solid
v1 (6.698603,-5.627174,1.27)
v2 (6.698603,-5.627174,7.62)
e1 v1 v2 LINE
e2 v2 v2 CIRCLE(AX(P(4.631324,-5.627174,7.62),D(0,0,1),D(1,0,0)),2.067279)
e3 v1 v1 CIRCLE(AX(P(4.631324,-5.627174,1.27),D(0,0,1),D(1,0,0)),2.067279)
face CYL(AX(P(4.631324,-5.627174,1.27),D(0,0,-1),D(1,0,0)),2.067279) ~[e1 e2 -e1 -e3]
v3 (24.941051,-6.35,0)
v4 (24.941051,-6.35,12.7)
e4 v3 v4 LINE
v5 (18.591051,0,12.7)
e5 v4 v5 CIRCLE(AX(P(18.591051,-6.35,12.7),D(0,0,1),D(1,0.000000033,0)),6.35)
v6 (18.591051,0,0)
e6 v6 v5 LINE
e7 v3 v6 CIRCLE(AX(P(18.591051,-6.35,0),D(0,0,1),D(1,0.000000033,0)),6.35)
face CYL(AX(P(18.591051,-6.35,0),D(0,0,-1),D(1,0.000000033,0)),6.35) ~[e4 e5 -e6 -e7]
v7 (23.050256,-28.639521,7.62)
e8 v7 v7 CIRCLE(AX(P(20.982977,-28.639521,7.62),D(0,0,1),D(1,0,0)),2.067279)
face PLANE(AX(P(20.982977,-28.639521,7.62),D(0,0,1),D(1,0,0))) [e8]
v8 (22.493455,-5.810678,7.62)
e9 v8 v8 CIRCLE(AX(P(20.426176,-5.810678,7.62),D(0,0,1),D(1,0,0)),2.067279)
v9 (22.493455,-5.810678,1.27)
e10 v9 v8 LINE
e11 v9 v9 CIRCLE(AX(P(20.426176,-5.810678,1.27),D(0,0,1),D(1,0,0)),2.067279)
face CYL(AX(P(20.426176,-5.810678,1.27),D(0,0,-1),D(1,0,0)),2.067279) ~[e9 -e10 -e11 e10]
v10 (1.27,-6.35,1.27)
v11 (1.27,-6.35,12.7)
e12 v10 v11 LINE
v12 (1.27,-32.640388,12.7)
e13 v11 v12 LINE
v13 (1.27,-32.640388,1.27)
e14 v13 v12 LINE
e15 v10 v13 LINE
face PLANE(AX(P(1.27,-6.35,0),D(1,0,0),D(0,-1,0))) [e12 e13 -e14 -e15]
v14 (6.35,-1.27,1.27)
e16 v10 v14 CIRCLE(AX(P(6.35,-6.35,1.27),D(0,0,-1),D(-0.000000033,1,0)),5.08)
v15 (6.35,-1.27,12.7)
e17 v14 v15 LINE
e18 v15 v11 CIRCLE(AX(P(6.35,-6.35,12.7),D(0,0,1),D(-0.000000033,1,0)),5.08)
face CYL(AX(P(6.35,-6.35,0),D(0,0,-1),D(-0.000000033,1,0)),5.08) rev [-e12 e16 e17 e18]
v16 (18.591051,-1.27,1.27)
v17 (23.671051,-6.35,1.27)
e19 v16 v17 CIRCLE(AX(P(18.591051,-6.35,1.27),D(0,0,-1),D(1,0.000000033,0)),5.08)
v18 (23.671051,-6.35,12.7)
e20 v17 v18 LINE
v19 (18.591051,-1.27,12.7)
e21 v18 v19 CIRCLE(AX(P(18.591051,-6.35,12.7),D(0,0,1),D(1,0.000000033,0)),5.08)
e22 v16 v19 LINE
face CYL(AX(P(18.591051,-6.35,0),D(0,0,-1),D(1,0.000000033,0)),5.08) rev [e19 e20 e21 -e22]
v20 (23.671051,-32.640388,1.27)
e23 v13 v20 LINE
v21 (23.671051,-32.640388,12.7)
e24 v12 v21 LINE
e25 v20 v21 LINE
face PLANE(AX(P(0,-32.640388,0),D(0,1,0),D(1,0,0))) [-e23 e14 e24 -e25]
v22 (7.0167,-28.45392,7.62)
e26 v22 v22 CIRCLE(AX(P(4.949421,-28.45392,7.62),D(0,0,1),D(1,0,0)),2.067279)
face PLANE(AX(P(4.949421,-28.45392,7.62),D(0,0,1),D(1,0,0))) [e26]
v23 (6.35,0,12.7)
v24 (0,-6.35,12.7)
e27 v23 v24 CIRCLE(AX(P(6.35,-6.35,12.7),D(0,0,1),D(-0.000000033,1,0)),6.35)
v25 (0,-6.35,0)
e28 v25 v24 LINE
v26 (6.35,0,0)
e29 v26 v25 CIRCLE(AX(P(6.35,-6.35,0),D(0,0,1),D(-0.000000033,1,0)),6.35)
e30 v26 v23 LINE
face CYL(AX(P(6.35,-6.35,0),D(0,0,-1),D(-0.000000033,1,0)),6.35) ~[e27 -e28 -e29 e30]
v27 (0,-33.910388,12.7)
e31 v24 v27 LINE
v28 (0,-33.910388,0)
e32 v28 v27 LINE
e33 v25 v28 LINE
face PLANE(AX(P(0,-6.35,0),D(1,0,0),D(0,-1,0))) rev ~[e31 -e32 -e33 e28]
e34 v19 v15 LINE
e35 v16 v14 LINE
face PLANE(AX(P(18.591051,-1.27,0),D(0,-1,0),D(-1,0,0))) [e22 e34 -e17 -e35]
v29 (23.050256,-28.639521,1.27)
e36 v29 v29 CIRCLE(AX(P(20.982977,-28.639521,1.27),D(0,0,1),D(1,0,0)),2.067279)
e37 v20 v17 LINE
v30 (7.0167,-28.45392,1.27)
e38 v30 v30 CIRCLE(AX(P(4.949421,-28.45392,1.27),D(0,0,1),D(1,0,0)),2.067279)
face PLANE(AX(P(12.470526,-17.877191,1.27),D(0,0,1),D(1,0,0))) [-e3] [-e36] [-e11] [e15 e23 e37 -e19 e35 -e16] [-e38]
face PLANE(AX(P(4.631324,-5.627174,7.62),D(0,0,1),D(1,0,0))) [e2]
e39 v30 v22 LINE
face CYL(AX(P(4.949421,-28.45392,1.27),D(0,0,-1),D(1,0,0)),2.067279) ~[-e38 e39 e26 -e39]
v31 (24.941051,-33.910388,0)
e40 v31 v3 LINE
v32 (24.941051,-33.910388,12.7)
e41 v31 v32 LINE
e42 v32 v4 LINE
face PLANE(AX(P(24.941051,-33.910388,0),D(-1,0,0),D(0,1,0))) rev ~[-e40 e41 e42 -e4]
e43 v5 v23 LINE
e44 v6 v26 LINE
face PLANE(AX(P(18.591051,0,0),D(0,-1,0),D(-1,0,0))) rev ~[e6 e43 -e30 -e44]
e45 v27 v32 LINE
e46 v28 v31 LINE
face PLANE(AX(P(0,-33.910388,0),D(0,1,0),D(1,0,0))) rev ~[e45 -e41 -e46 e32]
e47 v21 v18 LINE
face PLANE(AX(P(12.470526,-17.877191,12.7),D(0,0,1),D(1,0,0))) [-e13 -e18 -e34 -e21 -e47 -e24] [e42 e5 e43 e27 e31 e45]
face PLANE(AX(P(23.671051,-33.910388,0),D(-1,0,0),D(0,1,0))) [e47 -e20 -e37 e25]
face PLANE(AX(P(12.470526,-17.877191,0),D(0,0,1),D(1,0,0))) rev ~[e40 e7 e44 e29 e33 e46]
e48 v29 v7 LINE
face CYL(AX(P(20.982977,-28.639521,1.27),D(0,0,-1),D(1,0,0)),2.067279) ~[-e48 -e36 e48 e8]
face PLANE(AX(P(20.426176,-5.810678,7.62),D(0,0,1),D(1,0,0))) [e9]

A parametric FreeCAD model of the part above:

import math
import FreeCAD as App
import Part
import Sketcher
from FreeCAD import Vector
Q = App.Units.Quantity


def faces_at(feature, points):
    """Names of the faces that lie closest to the given points."""
    faces = feature.Shape.Faces
    near = lambda p: min(range(len(faces)), key=lambda i: faces[i].distToShape(Part.Vertex(*p))[0])
    return sorted({f"Face{near(p) + 1}" for p in points})

doc = App.newDocument("Part")
params = doc.addObject("Spreadsheet::Sheet", "Params")
for row, (alias, value) in enumerate([
    ("sketch1_radius", "0.25 in"),
    ("pad1_length", "0.5 in"),
    ("thickness_wall", "0.05 in"),
    ("pad2_length", "0.25 in"),
    ("pad3_length", "0.25 in"),
], start=1):
    params.set(f"A{row}", alias)
    params.set(f"B{row}", "=" + value)
    params.setAlias(f"B{row}", alias)

body = doc.addObject("PartDesign::Body", "Body")

# Sketch on XY plane
sketch1 = body.newObject("Sketcher::SketchObject", "Sketch")
sketch1.AttachmentSupport = (doc.getObject("XY_Plane"), [""])
sketch1.MapMode = "FlatFace"
sketch1.addGeometry(Part.LineSegment(Vector(19, 0, 0), Vector(6, 0, 0)), False)
sketch1.addGeometry(Part.ArcOfCircle(Part.Circle(Vector(6, -6, 0), Vector(0, 0, 1), 6), math.radians(90), math.radians(180)), False)
sketch1.addGeometry(Part.LineSegment(Vector(0, -6, 0), Vector(0, -34, 0)), False)
sketch1.addGeometry(Part.LineSegment(Vector(0, -34, 0), Vector(25, -34, 0)), False)
sketch1.addGeometry(Part.LineSegment(Vector(25, -34, 0), Vector(25, -6, 0)), False)
sketch1.addGeometry(Part.ArcOfCircle(Part.Circle(Vector(19, -6, 0), Vector(0, 0, 1), 6), math.radians(0), math.radians(90)), False)
sketch1.addConstraint(Sketcher.Constraint("Tangent", 0, 2, 1, 1))
sketch1.addConstraint(Sketcher.Constraint("Tangent", 1, 2, 2, 1))
sketch1.addConstraint(Sketcher.Constraint("Coincident", 2, 2, 3, 1))
sketch1.addConstraint(Sketcher.Constraint("Coincident", 3, 2, 4, 1))
sketch1.addConstraint(Sketcher.Constraint("Tangent", 4, 2, 5, 1))
sketch1.addConstraint(Sketcher.Constraint("Tangent", 5, 2, 0, 1))
sketch1.addConstraint(Sketcher.Constraint("Horizontal", 0))
sketch1.addConstraint(Sketcher.Constraint("Vertical", 2))
sketch1.addConstraint(Sketcher.Constraint("Horizontal", 3))
sketch1.addConstraint(Sketcher.Constraint("Vertical", 4))
sketch1.addConstraint(Sketcher.Constraint("Equal", 1, 5))
sketch1.addConstraint(Sketcher.Constraint("PointOnObject", 0, 2, -1))
sketch1.addConstraint(Sketcher.Constraint("PointOnObject", 1, 2, -2))
sketch1.addConstraint(Sketcher.Constraint("Radius", 1, Q("0.25 in")))
sketch1.addConstraint(Sketcher.Constraint("DistanceX", 0, 2, 0, 1, 12.241051))
sketch1.addConstraint(Sketcher.Constraint("DistanceY", 2, 2, 2, 1, 27.560388))
sketch1.setExpression("Constraints[13]", "Params.sketch1_radius")
pad1 = body.newObject("PartDesign::Pad", "Pad")
pad1.Profile = sketch1
pad1.setExpression("Length", "Params.pad1_length")
doc.recompute()

thickness = body.newObject("PartDesign::Thickness", "Thickness")
thickness.Base = (pad1, faces_at(pad1, [(12.471, -16.955, 12.7)]))
thickness.setExpression("Value", "Params.thickness_wall")
thickness.Reversed = True
thickness.Join = "Arc"

# Sketch on XY plane
sketch2 = body.newObject("Sketcher::SketchObject", "Sketch001")
sketch2.AttachmentSupport = (doc.getObject("XY_Plane"), [""])
sketch2.MapMode = "FlatFace"
sketch2.AttachmentOffset = App.Placement(Vector(0, 0, 0.05 * 25.4), App.Rotation())
sketch2.addGeometry(Part.Circle(Vector(4.6, -5.6, 0), Vector(0, 0, 1), 2.1), False)
sketch2.addConstraint(Sketcher.Constraint("Diameter", 0, 4.134558))
sketch2.addConstraint(Sketcher.Constraint("DistanceX", -1, 1, 0, 3, 4.631324))
sketch2.addConstraint(Sketcher.Constraint("DistanceY", 0, 3, -1, 1, 5.627174))
pad2 = body.newObject("PartDesign::Pad", "Pad001")
pad2.Profile = sketch2
pad2.setExpression("Length", "Params.pad2_length")

# Sketch on XY plane
sketch3 = body.newObject("Sketcher::SketchObject", "Sketch002")
sketch3.AttachmentSupport = (doc.getObject("XY_Plane"), [""])
sketch3.MapMode = "FlatFace"
sketch3.AttachmentOffset = App.Placement(Vector(0, 0, 0.05 * 25.4), App.Rotation())
sketch3.addGeometry(Part.Circle(Vector(4.9, -28.5, 0), Vector(0, 0, 1), 2.1), False)
sketch3.addGeometry(Part.Circle(Vector(20.4, -5.8, 0), Vector(0, 0, 1), 2.1), False)
sketch3.addGeometry(Part.Circle(Vector(21, -28.6, 0), Vector(0, 0, 1), 2.1), False)
sketch3.addConstraint(Sketcher.Constraint("Equal", 0, 1))
sketch3.addConstraint(Sketcher.Constraint("Equal", 1, 2))
sketch3.addConstraint(Sketcher.Constraint("Diameter", 0, 4.134558))
sketch3.addConstraint(Sketcher.Constraint("DistanceY", 2, 3, 0, 3, 0.185601))
sketch3.addConstraint(Sketcher.Constraint("DistanceX", 1, 3, 2, 3, 0.556801))
sketch3.addConstraint(Sketcher.Constraint("DistanceX", -1, 1, 0, 3, 4.949421))
sketch3.addConstraint(Sketcher.Constraint("DistanceY", 0, 3, -1, 1, 28.45392))
sketch3.addConstraint(Sketcher.Constraint("DistanceY", 1, 3, -1, 1, 5.810678))
sketch3.addConstraint(Sketcher.Constraint("DistanceX", -1, 1, 1, 3, 20.426176))
pad3 = body.newObject("PartDesign::Pad", "Pad002")
pad3.Profile = sketch3
pad3.setExpression("Length", "Params.pad3_length")

doc.recompute()
